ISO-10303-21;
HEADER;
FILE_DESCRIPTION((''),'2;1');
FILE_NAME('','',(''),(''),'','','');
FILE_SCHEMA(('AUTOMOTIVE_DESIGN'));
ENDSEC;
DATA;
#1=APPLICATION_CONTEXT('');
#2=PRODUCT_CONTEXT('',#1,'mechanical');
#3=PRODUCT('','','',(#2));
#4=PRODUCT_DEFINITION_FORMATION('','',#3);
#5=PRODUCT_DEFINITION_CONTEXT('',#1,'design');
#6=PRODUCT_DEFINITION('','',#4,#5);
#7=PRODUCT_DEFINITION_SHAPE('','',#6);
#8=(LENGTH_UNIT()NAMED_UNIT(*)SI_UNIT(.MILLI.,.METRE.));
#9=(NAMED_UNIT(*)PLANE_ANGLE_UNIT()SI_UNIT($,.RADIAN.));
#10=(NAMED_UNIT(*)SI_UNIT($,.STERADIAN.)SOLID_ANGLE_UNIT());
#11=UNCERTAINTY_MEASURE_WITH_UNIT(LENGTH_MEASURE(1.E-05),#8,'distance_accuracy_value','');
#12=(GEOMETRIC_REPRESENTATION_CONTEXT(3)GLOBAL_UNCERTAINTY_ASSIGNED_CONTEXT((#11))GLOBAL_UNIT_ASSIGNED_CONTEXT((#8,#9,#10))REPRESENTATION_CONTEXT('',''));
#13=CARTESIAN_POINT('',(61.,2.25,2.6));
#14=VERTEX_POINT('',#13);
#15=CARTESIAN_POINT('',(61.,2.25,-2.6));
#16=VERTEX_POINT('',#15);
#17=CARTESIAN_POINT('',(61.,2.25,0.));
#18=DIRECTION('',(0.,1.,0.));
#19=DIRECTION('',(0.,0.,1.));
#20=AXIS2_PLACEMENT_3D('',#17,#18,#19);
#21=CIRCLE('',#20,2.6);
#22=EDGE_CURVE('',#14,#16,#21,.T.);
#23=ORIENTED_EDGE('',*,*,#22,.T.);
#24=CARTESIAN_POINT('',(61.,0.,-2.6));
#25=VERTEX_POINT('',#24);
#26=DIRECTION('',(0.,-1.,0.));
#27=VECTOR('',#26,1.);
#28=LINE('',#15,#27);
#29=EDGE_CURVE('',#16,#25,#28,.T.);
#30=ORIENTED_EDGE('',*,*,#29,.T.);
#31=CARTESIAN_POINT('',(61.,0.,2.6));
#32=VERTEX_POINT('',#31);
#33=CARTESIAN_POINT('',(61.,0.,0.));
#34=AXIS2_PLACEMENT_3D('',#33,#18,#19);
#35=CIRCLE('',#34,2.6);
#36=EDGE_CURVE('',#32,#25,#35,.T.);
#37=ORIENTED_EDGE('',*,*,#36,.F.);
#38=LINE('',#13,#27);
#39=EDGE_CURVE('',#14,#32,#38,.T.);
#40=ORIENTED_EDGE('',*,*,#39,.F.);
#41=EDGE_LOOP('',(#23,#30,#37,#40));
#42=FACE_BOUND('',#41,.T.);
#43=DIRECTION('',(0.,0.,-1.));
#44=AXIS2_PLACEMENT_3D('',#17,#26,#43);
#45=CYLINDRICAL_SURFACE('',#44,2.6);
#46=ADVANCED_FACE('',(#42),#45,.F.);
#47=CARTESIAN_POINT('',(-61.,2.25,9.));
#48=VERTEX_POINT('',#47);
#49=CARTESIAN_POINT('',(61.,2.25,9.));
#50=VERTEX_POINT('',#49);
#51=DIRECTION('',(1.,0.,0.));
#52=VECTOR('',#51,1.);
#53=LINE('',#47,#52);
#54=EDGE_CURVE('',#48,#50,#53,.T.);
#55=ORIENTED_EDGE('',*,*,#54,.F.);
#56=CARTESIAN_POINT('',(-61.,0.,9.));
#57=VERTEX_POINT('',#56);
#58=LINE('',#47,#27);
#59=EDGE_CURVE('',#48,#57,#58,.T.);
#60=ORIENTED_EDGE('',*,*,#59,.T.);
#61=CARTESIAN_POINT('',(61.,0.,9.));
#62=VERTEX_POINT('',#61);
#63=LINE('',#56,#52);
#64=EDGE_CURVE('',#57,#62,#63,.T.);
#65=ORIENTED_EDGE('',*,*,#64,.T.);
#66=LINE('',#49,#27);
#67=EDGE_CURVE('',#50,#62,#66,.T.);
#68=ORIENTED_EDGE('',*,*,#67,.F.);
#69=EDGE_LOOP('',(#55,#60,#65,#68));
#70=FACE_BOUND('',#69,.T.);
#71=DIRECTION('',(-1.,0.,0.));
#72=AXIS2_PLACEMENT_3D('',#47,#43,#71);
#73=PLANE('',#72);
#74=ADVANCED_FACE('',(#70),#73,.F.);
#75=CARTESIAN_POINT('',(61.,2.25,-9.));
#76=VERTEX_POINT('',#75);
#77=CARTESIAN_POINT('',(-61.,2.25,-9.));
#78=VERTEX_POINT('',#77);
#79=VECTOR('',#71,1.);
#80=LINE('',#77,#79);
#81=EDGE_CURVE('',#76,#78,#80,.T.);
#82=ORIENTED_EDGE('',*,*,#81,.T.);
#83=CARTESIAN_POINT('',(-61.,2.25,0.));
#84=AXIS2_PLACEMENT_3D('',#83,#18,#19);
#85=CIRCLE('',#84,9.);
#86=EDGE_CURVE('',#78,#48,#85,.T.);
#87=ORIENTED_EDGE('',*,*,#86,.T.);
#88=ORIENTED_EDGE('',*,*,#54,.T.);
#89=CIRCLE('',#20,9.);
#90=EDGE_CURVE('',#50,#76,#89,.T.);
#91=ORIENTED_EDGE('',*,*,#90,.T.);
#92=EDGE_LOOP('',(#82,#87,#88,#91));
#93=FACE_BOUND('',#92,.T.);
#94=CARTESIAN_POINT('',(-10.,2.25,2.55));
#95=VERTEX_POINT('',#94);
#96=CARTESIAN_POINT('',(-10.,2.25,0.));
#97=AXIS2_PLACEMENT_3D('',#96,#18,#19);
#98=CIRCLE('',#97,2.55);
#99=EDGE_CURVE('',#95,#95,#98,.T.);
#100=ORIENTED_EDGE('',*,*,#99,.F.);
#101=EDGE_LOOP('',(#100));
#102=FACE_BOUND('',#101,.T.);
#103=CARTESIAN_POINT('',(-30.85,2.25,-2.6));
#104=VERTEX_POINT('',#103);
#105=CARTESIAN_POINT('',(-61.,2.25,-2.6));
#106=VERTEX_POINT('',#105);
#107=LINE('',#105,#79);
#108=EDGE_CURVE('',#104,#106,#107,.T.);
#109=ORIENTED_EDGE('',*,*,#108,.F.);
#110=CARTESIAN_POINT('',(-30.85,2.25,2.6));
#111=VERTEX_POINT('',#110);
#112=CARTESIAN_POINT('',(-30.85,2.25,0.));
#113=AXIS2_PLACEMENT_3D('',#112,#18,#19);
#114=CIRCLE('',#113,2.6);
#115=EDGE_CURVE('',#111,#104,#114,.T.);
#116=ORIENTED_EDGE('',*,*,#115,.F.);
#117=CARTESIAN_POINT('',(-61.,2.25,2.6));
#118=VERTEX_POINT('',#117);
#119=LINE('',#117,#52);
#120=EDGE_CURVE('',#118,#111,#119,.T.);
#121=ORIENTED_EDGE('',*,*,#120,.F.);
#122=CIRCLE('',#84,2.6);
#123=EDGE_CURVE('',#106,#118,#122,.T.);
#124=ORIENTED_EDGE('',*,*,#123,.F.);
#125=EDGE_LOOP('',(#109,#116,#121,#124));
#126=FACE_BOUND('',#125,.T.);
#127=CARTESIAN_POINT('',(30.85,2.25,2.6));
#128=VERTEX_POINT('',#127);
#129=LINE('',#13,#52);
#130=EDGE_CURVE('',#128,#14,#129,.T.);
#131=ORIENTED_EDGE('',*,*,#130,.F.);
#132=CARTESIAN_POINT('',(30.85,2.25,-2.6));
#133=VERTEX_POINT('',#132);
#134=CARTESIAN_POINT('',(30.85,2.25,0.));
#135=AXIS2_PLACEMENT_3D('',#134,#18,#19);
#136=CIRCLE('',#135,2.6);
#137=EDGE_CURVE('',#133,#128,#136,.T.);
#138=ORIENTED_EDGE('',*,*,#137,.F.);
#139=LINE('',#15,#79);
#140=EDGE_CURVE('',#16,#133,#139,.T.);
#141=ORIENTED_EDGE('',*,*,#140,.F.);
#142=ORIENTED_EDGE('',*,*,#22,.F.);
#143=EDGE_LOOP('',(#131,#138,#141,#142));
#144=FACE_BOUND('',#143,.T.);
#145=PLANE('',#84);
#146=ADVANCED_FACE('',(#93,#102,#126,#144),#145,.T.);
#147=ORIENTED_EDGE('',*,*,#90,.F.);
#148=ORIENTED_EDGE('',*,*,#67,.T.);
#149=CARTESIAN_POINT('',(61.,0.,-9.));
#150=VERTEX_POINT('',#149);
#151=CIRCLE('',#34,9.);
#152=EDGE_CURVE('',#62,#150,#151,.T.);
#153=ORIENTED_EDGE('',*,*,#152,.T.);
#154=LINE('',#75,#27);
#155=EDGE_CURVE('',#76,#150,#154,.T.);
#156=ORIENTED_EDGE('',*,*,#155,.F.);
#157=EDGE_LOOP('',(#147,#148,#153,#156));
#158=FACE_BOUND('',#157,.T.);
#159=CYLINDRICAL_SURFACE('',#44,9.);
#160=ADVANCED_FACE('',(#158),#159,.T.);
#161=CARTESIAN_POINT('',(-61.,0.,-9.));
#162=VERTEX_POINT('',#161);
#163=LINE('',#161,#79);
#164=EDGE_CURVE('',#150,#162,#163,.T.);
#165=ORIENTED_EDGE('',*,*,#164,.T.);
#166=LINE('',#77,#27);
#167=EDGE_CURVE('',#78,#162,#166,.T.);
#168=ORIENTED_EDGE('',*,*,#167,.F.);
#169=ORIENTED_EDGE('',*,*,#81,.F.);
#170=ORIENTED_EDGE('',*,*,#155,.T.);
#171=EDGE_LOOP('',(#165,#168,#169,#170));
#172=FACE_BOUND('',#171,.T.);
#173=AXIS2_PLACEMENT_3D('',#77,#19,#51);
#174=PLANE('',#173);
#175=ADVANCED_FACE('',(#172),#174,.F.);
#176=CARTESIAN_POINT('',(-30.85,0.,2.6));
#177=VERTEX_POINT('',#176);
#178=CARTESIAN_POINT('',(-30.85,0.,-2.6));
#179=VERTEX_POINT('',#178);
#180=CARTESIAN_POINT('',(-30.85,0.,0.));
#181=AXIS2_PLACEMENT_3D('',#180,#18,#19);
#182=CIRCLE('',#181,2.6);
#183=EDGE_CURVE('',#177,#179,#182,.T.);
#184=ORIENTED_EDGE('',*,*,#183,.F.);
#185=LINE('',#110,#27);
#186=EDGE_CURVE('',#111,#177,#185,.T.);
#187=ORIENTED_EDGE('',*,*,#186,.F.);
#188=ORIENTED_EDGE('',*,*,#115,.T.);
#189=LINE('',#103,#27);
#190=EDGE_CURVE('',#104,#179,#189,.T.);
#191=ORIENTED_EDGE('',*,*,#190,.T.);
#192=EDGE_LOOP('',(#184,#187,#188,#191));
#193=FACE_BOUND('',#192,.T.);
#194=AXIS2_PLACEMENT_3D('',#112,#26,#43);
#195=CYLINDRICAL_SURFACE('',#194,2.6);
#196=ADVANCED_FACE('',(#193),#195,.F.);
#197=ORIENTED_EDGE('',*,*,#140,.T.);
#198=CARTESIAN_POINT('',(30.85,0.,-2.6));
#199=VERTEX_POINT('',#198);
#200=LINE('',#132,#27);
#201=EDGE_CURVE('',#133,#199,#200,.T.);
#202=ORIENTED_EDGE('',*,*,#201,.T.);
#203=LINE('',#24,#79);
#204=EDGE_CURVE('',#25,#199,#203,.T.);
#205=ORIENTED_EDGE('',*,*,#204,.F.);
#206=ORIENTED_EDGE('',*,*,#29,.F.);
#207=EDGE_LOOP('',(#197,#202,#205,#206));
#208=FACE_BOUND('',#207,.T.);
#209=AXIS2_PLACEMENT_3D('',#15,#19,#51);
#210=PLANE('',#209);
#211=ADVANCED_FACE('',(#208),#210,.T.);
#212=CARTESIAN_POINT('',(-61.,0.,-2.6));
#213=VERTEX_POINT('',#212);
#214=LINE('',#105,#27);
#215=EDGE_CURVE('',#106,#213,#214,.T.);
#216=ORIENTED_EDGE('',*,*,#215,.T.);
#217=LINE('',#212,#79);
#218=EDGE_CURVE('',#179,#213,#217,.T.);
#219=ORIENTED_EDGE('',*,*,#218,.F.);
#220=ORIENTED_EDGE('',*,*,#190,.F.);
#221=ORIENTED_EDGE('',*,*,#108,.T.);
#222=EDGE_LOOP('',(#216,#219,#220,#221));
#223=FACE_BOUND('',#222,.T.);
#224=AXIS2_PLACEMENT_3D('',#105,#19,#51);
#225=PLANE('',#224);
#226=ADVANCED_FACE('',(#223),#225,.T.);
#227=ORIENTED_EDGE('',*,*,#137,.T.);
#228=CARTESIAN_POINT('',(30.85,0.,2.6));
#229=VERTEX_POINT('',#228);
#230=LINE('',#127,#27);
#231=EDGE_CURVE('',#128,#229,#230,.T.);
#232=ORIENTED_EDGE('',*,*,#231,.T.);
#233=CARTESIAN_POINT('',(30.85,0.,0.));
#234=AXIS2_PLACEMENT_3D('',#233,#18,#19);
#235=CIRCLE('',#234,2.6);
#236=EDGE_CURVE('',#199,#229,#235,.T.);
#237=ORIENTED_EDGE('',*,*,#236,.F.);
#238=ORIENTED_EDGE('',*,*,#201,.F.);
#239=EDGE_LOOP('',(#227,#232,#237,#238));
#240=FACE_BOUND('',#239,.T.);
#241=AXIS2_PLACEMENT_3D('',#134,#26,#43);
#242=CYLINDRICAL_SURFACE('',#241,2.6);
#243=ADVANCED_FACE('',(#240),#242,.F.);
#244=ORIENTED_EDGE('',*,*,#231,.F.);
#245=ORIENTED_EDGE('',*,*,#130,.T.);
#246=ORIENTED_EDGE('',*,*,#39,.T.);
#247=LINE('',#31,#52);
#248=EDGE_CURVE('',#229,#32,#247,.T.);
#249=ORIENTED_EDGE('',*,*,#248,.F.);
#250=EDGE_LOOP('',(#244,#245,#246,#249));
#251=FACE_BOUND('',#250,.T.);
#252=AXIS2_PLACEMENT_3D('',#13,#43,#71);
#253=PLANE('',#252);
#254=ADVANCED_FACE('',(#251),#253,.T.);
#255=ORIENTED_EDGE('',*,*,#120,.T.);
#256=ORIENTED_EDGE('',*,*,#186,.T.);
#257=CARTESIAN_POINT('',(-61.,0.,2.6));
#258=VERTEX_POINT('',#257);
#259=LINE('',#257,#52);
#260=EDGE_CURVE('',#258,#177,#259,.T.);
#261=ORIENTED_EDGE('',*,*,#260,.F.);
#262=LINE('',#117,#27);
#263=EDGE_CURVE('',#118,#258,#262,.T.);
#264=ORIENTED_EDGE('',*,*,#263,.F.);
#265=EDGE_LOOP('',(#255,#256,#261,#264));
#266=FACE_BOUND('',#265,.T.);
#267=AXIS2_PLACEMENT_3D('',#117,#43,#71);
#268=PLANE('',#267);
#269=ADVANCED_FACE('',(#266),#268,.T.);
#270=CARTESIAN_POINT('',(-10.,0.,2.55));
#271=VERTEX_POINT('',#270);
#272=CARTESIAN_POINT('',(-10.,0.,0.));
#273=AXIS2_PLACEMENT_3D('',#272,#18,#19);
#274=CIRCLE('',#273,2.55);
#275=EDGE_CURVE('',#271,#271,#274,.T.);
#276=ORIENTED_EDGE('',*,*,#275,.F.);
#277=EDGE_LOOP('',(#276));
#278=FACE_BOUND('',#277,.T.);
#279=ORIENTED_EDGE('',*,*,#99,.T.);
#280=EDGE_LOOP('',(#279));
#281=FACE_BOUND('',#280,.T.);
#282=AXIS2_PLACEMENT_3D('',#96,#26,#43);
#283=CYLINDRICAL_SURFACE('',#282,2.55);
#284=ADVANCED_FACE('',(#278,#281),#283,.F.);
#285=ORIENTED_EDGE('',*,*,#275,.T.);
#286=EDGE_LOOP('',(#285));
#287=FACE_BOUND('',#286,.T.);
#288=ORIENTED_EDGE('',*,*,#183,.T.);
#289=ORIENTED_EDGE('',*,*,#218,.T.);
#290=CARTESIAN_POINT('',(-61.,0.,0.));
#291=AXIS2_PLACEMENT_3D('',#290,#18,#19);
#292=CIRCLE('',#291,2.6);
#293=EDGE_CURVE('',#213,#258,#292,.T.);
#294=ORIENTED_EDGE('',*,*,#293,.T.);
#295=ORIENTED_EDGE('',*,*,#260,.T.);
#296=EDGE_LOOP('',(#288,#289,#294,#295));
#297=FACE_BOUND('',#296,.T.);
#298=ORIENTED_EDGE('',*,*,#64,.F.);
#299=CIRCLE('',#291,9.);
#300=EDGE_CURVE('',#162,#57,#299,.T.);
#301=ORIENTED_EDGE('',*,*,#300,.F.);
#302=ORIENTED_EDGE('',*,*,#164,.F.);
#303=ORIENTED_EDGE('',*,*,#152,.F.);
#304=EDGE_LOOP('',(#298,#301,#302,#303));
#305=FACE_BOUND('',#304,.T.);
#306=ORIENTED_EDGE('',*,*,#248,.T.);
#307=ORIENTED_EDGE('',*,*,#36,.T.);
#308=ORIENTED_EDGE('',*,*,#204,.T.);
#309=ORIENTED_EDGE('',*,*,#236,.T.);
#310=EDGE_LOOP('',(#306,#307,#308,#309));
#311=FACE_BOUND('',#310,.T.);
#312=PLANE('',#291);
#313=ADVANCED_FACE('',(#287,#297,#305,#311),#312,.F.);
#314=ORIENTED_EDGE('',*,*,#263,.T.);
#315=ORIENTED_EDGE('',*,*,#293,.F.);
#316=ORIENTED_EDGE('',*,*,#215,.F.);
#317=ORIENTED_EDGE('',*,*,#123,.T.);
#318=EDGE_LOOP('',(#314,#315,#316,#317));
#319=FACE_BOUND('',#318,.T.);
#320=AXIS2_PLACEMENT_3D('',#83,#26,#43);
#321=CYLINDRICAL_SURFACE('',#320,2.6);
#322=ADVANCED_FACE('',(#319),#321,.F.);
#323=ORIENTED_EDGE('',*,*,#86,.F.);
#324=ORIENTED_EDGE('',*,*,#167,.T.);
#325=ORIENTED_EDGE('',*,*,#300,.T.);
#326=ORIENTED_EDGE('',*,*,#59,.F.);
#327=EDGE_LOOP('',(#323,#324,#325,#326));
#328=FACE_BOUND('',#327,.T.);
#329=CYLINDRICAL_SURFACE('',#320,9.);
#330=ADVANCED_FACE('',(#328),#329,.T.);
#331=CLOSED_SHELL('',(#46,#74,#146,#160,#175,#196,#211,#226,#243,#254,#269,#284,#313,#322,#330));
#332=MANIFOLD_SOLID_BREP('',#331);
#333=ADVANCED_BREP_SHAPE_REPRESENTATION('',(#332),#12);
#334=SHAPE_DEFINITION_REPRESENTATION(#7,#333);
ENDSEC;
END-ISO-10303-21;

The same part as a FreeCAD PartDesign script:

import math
import FreeCAD as App
import Part
import Sketcher
from FreeCAD import Vector

doc = App.newDocument("Part")
body = doc.addObject("PartDesign::Body", "Body")

sketch1 = body.newObject("Sketcher::SketchObject", "Sketch")
sketch1.AttachmentSupport = (doc.getObject("XZ_Plane"), [""])
sketch1.MapMode = "FlatFace"
sketch1.addGeometry([
    Part.LineSegment(Vector(61, -9, 0), Vector(-61, -9, 0)),
    Part.ArcOfCircle(Part.Circle(Vector(-61, 0, 0), Vector(0, 0, 1), 9), math.radians(90), math.radians(270)),
    Part.LineSegment(Vector(-61, 9, 0), Vector(61, 9, 0)),
    Part.ArcOfCircle(Part.Circle(Vector(61, 0, 0), Vector(0, 0, 1), 9), math.radians(-90), math.radians(90)),
    Part.LineSegment(Vector(61, 2.6, 0), Vector(30.9, 2.6, 0)),
    Part.ArcOfCircle(Part.Circle(Vector(30.9, 0, 0), Vector(0, 0, 1), 2.6), math.radians(90), math.radians(270)),
    Part.LineSegment(Vector(30.9, -2.6, 0), Vector(61, -2.6, 0)),
    Part.ArcOfCircle(Part.Circle(Vector(61, 0, 0), Vector(0, 0, 1), 2.6), math.radians(-90), math.radians(90)),
    Part.Circle(Vector(-10, 0, 0), Vector(0, 0, 1), 2.5),
    Part.LineSegment(Vector(-61, -2.6, 0), Vector(-30.9, -2.6, 0)),
    Part.ArcOfCircle(Part.Circle(Vector(-30.9, 0, 0), Vector(0, 0, 1), 2.6), math.radians(-90), math.radians(90)),
    Part.LineSegment(Vector(-30.9, 2.6, 0), Vector(-61, 2.6, 0)),
    Part.ArcOfCircle(Part.Circle(Vector(-61, 0, 0), Vector(0, 0, 1), 2.6), math.radians(90), math.radians(270)),
], False)
sketch1.addConstraint([
    Sketcher.Constraint("Tangent", 0, 2, 1, 2),
    Sketcher.Constraint("Tangent", 1, 1, 2, 1),
    Sketcher.Constraint("Tangent", 2, 2, 3, 2),
    Sketcher.Constraint("Tangent", 3, 1, 0, 1),
    Sketcher.Constraint("Tangent", 4, 2, 5, 1),
    Sketcher.Constraint("Tangent", 5, 2, 6, 1),
    Sketcher.Constraint("Tangent", 6, 2, 7, 1),
    Sketcher.Constraint("Tangent", 7, 2, 4, 1),
    Sketcher.Constraint("Tangent", 9, 2, 10, 1),
    Sketcher.Constraint("Tangent", 10, 2, 11, 1),
    Sketcher.Constraint("Tangent", 11, 2, 12, 1),
    Sketcher.Constraint("Tangent", 12, 2, 9, 1),
    Sketcher.Constraint("Horizontal", 0),
    Sketcher.Constraint("Horizontal", 2),
    Sketcher.Constraint("Horizontal", 4),
    Sketcher.Constraint("Horizontal", 6),
    Sketcher.Constraint("Horizontal", 9),
    Sketcher.Constraint("Horizontal", 11),
    Sketcher.Constraint("Coincident", 7, 3, 3, 3),
    Sketcher.Constraint("Coincident", 12, 3, 1, 3),
    Sketcher.Constraint("Equal", 7, 10),
    Sketcher.Constraint("Symmetric", 1, 3, 3, 3, -1, 1),
    Sketcher.Constraint("PointOnObject", 8, 3, -1),
    Sketcher.Constraint("Equal", 6, 9),
    Sketcher.Constraint("Radius", 1, 9.0),
    Sketcher.Constraint("Diameter", 8, 5.1),
    Sketcher.Constraint("Radius", 5, 2.6),
    Sketcher.Constraint("DistanceX", 0, 2, 0, 1, 122.0),
    Sketcher.Constraint("DistanceX", 8, 3, -1, 1, 10.0),
    Sketcher.Constraint("DistanceX", 4, 2, 4, 1, 30.15),
])
pad1 = body.newObject("PartDesign::Pad", "Pad")
pad1.Profile = sketch1
pad1.Length = 2.25
pad1.Reversed = True

doc.recompute()
